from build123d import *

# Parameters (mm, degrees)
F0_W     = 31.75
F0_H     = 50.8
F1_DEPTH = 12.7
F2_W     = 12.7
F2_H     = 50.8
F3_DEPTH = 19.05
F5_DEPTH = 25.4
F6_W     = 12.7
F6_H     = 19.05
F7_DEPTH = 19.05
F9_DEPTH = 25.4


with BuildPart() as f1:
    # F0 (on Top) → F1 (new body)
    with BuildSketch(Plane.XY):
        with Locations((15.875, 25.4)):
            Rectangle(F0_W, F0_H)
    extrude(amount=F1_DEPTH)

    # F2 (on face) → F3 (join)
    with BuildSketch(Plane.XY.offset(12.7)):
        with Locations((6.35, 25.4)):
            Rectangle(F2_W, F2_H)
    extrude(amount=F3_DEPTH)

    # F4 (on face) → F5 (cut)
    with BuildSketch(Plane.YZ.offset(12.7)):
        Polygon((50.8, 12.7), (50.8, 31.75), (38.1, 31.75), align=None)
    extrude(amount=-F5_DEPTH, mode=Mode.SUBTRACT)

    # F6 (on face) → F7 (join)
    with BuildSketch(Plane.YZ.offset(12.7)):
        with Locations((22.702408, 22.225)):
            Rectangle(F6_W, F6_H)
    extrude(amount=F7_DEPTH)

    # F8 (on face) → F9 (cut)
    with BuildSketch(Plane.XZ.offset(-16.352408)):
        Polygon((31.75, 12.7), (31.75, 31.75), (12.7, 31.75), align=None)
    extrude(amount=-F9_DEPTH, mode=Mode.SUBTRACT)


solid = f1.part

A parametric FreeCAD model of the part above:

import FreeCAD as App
import Part
import Sketcher
from FreeCAD import Vector
Q = App.Units.Quantity

doc = App.newDocument("Part")
body = doc.addObject("PartDesign::Body", "Body")

# Sketch on XY plane
sketch1 = body.newObject("Sketcher::SketchObject", "Sketch")
sketch1.AttachmentSupport = (doc.getObject("XY_Plane"), [""])
sketch1.MapMode = "FlatFace"
sketch1.addGeometry([
    Part.LineSegment(Vector(0, 51, 0), Vector(0, 0, 0)),
    Part.LineSegment(Vector(0, 0, 0), Vector(32, 0, 0)),
    Part.LineSegment(Vector(32, 0, 0), Vector(32, 51, 0)),
    Part.LineSegment(Vector(32, 51, 0), Vector(0, 51, 0)),
], False)
sketch1.addConstraint([
    Sketcher.Constraint("Coincident", 0, 2, 1, 1),
    Sketcher.Constraint("Coincident", 1, 2, 2, 1),
    Sketcher.Constraint("Coincident", 2, 2, 3, 1),
    Sketcher.Constraint("Coincident", 3, 2, 0, 1),
    Sketcher.Constraint("Vertical", 0),
    Sketcher.Constraint("Horizontal", 1),
    Sketcher.Constraint("Vertical", 2),
    Sketcher.Constraint("Horizontal", 3),
    Sketcher.Constraint("Coincident", 0, 2, -1, 1),
    Sketcher.Constraint("DistanceY", 0, 2, 0, 1, Q("2 in")),
    Sketcher.Constraint("DistanceX", 1, 1, 1, 2, Q("1.25 in")),
])
pad1 = body.newObject("PartDesign::Pad", "Pad")
pad1.Profile = sketch1
pad1.Length = Q("0.5 in")

# Sketch on XY plane
sketch2 = body.newObject("Sketcher::SketchObject", "Sketch001")
sketch2.AttachmentSupport = (doc.getObject("XY_Plane"), [""])
sketch2.MapMode = "FlatFace"
sketch2.AttachmentOffset = App.Placement(Vector(0, 0, 0.5 * 25.4), App.Rotation())
sketch2.addGeometry([
    Part.LineSegment(Vector(0, 51, 0), Vector(0, 0, 0)),
    Part.LineSegment(Vector(0, 0, 0), Vector(13, 0, 0)),
    Part.LineSegment(Vector(13, 0, 0), Vector(13, 51, 0)),
    Part.LineSegment(Vector(13, 51, 0), Vector(0, 51, 0)),
], False)
sketch2.addConstraint([
    Sketcher.Constraint("Coincident", 0, 2, 1, 1),
    Sketcher.Constraint("Coincident", 1, 2, 2, 1),
    Sketcher.Constraint("Coincident", 2, 2, 3, 1),
    Sketcher.Constraint("Coincident", 3, 2, 0, 1),
    Sketcher.Constraint("Vertical", 0),
    Sketcher.Constraint("Horizontal", 1),
    Sketcher.Constraint("Vertical", 2),
    Sketcher.Constraint("Horizontal", 3),
    Sketcher.Constraint("Coincident", 0, 2, -1, 1),
    Sketcher.Constraint("DistanceY", 0, 2, 0, 1, Q("2 in")),
    Sketcher.Constraint("DistanceX", 1, 1, 1, 2, Q("0.5 in")),
])
pad2 = body.newObject("PartDesign::Pad", "Pad001")
pad2.Profile = sketch2
pad2.Length = Q("0.75 in")

# Sketch on YZ plane
sketch3 = body.newObject("Sketcher::SketchObject", "Sketch002")
sketch3.AttachmentSupport = (doc.getObject("YZ_Plane"), [""])
sketch3.MapMode = "FlatFace"
sketch3.AttachmentOffset = App.Placement(Vector(0, 0, 0.5 * 25.4), App.Rotation())
sketch3.addGeometry([
    Part.LineSegment(Vector(51, 13, 0), Vector(51, 32, 0)),
    Part.LineSegment(Vector(51, 32, 0), Vector(38, 32, 0)),
    Part.LineSegment(Vector(38, 32, 0), Vector(51, 13, 0)),
], False)
sketch3.addConstraint([
    Sketcher.Constraint("Coincident", 0, 2, 1, 1),
    Sketcher.Constraint("Coincident", 1, 2, 2, 1),
    Sketcher.Constraint("Coincident", 2, 2, 0, 1),
    Sketcher.Constraint("Vertical", 0),
    Sketcher.Constraint("Horizontal", 1),
    Sketcher.Constraint("DistanceX", 1, 2, 1, 1, Q("0.5 in")),
    Sketcher.Constraint("DistanceX", -1, 1, 0, 2, Q("2 in")),
    Sketcher.Constraint("DistanceY", 0, 1, 0, 2, Q("0.75 in")),
    Sketcher.Constraint("DistanceY", -1, 1, 2, 2, Q("0.5 in")),
])
pocket1 = body.newObject("PartDesign::Pocket", "Pocket")
pocket1.Profile = sketch3
pocket1.Length = Q("1 in")

# Sketch on YZ plane
sketch4 = body.newObject("Sketcher::SketchObject", "Sketch003")
sketch4.AttachmentSupport = (doc.getObject("YZ_Plane"), [""])
sketch4.MapMode = "FlatFace"
sketch4.AttachmentOffset = App.Placement(Vector(0, 0, 0.5 * 25.4), App.Rotation())
sketch4.addGeometry([
    Part.LineSegment(Vector(16, 32, 0), Vector(16, 13, 0)),
    Part.LineSegment(Vector(16, 13, 0), Vector(29, 13, 0)),
    Part.LineSegment(Vector(29, 13, 0), Vector(29, 32, 0)),
    Part.LineSegment(Vector(29, 32, 0), Vector(16, 32, 0)),
], False)
sketch4.addConstraint([
    Sketcher.Constraint("Coincident", 0, 2, 1, 1),
    Sketcher.Constraint("Coincident", 1, 2, 2, 1),
    Sketcher.Constraint("Coincident", 2, 2, 3, 1),
    Sketcher.Constraint("Coincident", 3, 2, 0, 1),
    Sketcher.Constraint("Vertical", 0),
    Sketcher.Constraint("Horizontal", 1),
    Sketcher.Constraint("Vertical", 2),
    Sketcher.Constraint("Horizontal", 3),
    Sketcher.Constraint("DistanceX", 1, 1, 1, 2, Q("0.5 in")),
    Sketcher.Constraint("DistanceY", 0, 2, 0, 1, Q("0.75 in")),
    Sketcher.Constraint("DistanceY", -1, 1, 0, 2, Q("0.5 in")),
    Sketcher.Constraint("DistanceX", -1, 1, 0, 2, 16.352408),
])
pad3 = body.newObject("PartDesign::Pad", "Pad002")
pad3.Profile = sketch4
pad3.Length = Q("0.75 in")

# Sketch on XZ plane
sketch5 = body.newObject("Sketcher::SketchObject", "Sketch004")
sketch5.AttachmentSupport = (doc.getObject("XZ_Plane"), [""])
sketch5.MapMode = "FlatFace"
sketch5.AttachmentOffset = App.Placement(Vector(0, 0, -16.352408), App.Rotation())
sketch5.addGeometry([
    Part.LineSegment(Vector(32, 13, 0), Vector(32, 32, 0)),
    Part.LineSegment(Vector(32, 32, 0), Vector(13, 32, 0)),
    Part.LineSegment(Vector(13, 32, 0), Vector(32, 13, 0)),
], False)
sketch5.addConstraint([
    Sketcher.Constraint("Coincident", 0, 2, 1, 1),
    Sketcher.Constraint("Coincident", 1, 2, 2, 1),
    Sketcher.Constraint("Coincident", 2, 2, 0, 1),
    Sketcher.Constraint("Vertical", 0),
    Sketcher.Constraint("Horizontal", 1),
    Sketcher.Constraint("Equal", 1, 0),
    Sketcher.Constraint("DistanceX", 1, 2, 1, 1, Q("0.75 in")),
    Sketcher.Constraint("DistanceX", -1, 1, 1, 2, Q("0.5 in")),
    Sketcher.Constraint("DistanceY", -1, 1, 2, 2, Q("0.5 in")),
])
pocket2 = body.newObject("PartDesign::Pocket", "Pocket001")
pocket2.Profile = sketch5
pocket2.Length = Q("1 in")

doc.recompute()
